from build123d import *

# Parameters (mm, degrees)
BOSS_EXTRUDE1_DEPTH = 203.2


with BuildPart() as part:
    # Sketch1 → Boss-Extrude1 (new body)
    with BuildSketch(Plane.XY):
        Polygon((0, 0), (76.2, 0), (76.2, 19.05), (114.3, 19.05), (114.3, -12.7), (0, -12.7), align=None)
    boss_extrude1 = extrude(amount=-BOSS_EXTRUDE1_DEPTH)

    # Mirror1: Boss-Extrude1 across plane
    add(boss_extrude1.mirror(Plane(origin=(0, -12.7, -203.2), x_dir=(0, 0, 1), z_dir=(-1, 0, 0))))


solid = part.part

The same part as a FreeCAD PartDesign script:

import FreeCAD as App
import Part
import Sketcher

V = App.Vector
Q = App.Units.Quantity


def add_polygon(sketch, points):
    """Adds a closed chain of lines whose ends are joined by coincident constraints."""
    first, n = sketch.GeometryCount, len(points)
    for a, b in zip(points, points[1:] + points[:1]):
        sketch.addGeometry(Part.LineSegment(App.Vector(*a, 0), App.Vector(*b, 0)), False)
    for i in range(n):
        sketch.addConstraint(Sketcher.Constraint("Coincident", first + i, 2, first + (i + 1) % n, 1))

doc = App.newDocument("Part")
params = doc.addObject("Spreadsheet::Sheet", "Params")
for row, (alias, value) in enumerate([
    ("sketch1_width", "3 in"),
    ("sketch1_width2", "4.5 in"),
    ("sketch1_height", "0.5 in"),
    ("sketch1_height2", "1.25 in"),
    ("pad1_length", "8 in"),
], start=1):
    params.set(f"A{row}", alias)
    params.set(f"B{row}", "=" + value)
    params.setAlias(f"B{row}", alias)

body = doc.addObject("PartDesign::Body", "Body")

# Sketch on XY plane
sketch1 = body.newObject("Sketcher::SketchObject", "Sketch")
sketch1.AttachmentSupport = (doc.getObject("XY_Plane"), [""])
sketch1.MapMode = "FlatFace"
add_polygon(sketch1, [(76.2, 0), (0, 0), (0, -12.7), (114.3, -12.7), (114.3, 19.05), (76.2, 19.05)])  # lines 0-5
sketch1.addConstraint(Sketcher.Constraint("Horizontal", 0))
sketch1.addConstraint(Sketcher.Constraint("Vertical", 1))
sketch1.addConstraint(Sketcher.Constraint("Horizontal", 2))
sketch1.addConstraint(Sketcher.Constraint("Vertical", 3))
sketch1.addConstraint(Sketcher.Constraint("Horizontal", 4))
sketch1.addConstraint(Sketcher.Constraint("Vertical", 5))
sketch1.addConstraint(Sketcher.Constraint("Coincident", 0, 2, -1, 1))
sketch1.addConstraint(Sketcher.Constraint("DistanceX", 0, 2, 0, 1, Q("3 in")))
sketch1.addConstraint(Sketcher.Constraint("DistanceX", 2, 1, 2, 2, Q("4.5 in")))
sketch1.addConstraint(Sketcher.Constraint("DistanceY", 1, 2, 1, 1, Q("0.5 in")))
sketch1.addConstraint(Sketcher.Constraint("DistanceY", 3, 1, 3, 2, Q("1.25 in")))
sketch1.setExpression("Constraints[13]", "Params.sketch1_width")
sketch1.setExpression("Constraints[14]", "Params.sketch1_width2")
sketch1.setExpression("Constraints[15]", "Params.sketch1_height")
sketch1.setExpression("Constraints[16]", "Params.sketch1_height2")
pad1 = body.newObject("PartDesign::Pad", "Pad")
pad1.Profile = sketch1
pad1.setExpression("Length", "Params.pad1_length")
pad1.Reversed = True
doc.recompute()

mirrored = body.newObject("PartDesign::Mirrored", "Mirrored")
mirrored.Originals = [pad1]
mirrored.MirrorPlane = (doc.getObject("YZ_Plane"), [""])
body.Tip = mirrored

doc.recompute()
